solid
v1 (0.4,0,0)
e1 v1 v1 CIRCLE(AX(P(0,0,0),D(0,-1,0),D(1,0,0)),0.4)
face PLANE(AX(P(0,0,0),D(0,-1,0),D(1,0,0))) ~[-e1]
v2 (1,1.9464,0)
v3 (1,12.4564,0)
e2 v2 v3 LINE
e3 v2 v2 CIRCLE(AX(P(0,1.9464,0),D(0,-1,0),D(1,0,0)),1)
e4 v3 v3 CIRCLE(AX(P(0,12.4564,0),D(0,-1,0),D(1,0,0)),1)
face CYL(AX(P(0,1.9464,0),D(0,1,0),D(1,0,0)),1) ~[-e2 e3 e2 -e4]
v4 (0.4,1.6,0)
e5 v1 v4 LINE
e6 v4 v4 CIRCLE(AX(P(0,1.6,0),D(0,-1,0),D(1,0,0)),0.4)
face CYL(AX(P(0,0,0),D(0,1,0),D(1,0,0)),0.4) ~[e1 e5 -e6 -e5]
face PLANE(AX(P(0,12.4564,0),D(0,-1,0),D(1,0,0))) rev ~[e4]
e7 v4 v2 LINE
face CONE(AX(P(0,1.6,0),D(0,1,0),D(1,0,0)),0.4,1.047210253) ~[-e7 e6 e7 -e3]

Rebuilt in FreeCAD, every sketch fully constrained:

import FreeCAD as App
import Part
import Sketcher

V = App.Vector
Q = App.Units.Quantity


def add_polygon(sketch, points):
    """Adds a closed chain of lines whose ends are joined by coincident constraints."""
    first, n = sketch.GeometryCount, len(points)
    for a, b in zip(points, points[1:] + points[:1]):
        sketch.addGeometry(Part.LineSegment(App.Vector(*a, 0), App.Vector(*b, 0)), False)
    for i in range(n):
        sketch.addConstraint(Sketcher.Constraint("Coincident", first + i, 2, first + (i + 1) % n, 1))

doc = App.newDocument("Part")
body = doc.addObject("PartDesign::Body", "Body")

# Sketch on XY plane
sketch1 = body.newObject("Sketcher::SketchObject", "Sketch")
sketch1.AttachmentSupport = (doc.getObject("XY_Plane"), [""])
sketch1.MapMode = "FlatFace"
add_polygon(sketch1, [(0, 0), (0.4, 0), (0.4, 1.6), (1, 1.95), (1, 12.46), (0, 12.46)])  # lines 0-5
sketch1.addConstraint(Sketcher.Constraint("Horizontal", 0))
sketch1.addConstraint(Sketcher.Constraint("Vertical", 1))
sketch1.addConstraint(Sketcher.Constraint("Vertical", 3))
sketch1.addConstraint(Sketcher.Constraint("Horizontal", 4))
sketch1.addConstraint(Sketcher.Constraint("Vertical", 5))
sketch1.addConstraint(Sketcher.Constraint("Coincident", 5, 2, -1, 1))
sketch1.addConstraint(Sketcher.Constraint("DistanceX", 4, 2, 4, 1, Q("1 mm")))
sketch1.addConstraint(Sketcher.Constraint("DistanceX", 0, 1, 0, 2, Q("0.4 mm")))
sketch1.addConstraint(Sketcher.Constraint("DistanceY", 1, 1, 1, 2, Q("1.6 mm")))
sketch1.addConstraint(Sketcher.Constraint("DistanceY", 3, 1, 3, 2, Q("10.51 mm")))
sketch1.addConstraint(Sketcher.Constraint("Angle", 2, Q("29.9993 deg")))
revolution = body.newObject("PartDesign::Revolution", "Revolution")
revolution.Profile = sketch1
revolution.ReferenceAxis = (sketch1, ["V_Axis"])
revolution.Angle = 360

doc.recompute()
